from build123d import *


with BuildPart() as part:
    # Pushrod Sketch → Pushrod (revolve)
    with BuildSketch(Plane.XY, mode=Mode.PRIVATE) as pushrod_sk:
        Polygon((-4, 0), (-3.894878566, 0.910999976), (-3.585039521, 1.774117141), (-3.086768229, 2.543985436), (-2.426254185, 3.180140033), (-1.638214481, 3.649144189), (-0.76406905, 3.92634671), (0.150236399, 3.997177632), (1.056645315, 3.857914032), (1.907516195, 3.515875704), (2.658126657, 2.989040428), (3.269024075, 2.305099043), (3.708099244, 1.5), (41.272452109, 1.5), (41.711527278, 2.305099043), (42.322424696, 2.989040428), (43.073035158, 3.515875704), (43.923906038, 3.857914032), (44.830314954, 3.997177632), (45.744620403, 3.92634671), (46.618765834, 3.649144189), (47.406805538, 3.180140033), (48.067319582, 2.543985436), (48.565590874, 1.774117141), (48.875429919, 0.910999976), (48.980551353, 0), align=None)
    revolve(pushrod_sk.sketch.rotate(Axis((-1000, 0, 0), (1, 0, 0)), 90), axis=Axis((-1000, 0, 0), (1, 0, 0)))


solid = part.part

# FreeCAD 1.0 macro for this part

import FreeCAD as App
import Part
import Sketcher
Q = App.Units.Quantity

doc = App.newDocument("Part")
params = doc.addObject("Spreadsheet::Sheet", "Params")
for row, (alias, value) in enumerate([
    ("revolution_angle", "360 deg"),
], start=1):
    params.set(f"A{row}", alias)
    params.set(f"B{row}", "=" + value)
    params.setAlias(f"B{row}", alias)

body = doc.addObject("PartDesign::Body", "Body")

# Sketch on XY plane
sketch1 = doc.addObject("Sketcher::SketchObject", "Sketch")
body.addObject(sketch1)
sketch1.AttachmentSupport = (doc.XY_Plane, [""])
sketch1.MapMode = "FlatFace"
sketch1.addGeometry([
    Part.LineSegment(App.Vector(-3.9, 0.9, 0), App.Vector(-4, 0, 0)),  # 0
    Part.LineSegment(App.Vector(-4, 0, 0), App.Vector(49, 0, 0)),  # 1
    Part.LineSegment(App.Vector(49, 0, 0), App.Vector(48.9, 0.9, 0)),  # 2
    Part.LineSegment(App.Vector(48.9, 0.9, 0), App.Vector(48.6, 1.8, 0)),  # 3
    Part.LineSegment(App.Vector(48.6, 1.8, 0), App.Vector(48.1, 2.5, 0)),  # 4
    Part.LineSegment(App.Vector(48.1, 2.5, 0), App.Vector(47.4, 3.2, 0)),  # 5
    Part.LineSegment(App.Vector(47.4, 3.2, 0), App.Vector(46.6, 3.6, 0)),  # 6
    Part.LineSegment(App.Vector(46.6, 3.6, 0), App.Vector(45.7, 3.9, 0)),  # 7
    Part.LineSegment(App.Vector(45.7, 3.9, 0), App.Vector(44.8, 4, 0)),  # 8
    Part.LineSegment(App.Vector(44.8, 4, 0), App.Vector(43.9, 3.9, 0)),  # 9
    Part.LineSegment(App.Vector(43.9, 3.9, 0), App.Vector(43.1, 3.5, 0)),  # 10
    Part.LineSegment(App.Vector(43.1, 3.5, 0), App.Vector(42.3, 3, 0)),  # 11
    Part.LineSegment(App.Vector(42.3, 3, 0), App.Vector(41.7, 2.3, 0)),  # 12
    Part.LineSegment(App.Vector(41.7, 2.3, 0), App.Vector(41.3, 1.5, 0)),  # 13
    Part.LineSegment(App.Vector(41.3, 1.5, 0), App.Vector(3.7, 1.5, 0)),  # 14
    Part.LineSegment(App.Vector(3.7, 1.5, 0), App.Vector(3.3, 2.3, 0)),  # 15
    Part.LineSegment(App.Vector(3.3, 2.3, 0), App.Vector(2.7, 3, 0)),  # 16
    Part.LineSegment(App.Vector(2.7, 3, 0), App.Vector(1.9, 3.5, 0)),  # 17
    Part.LineSegment(App.Vector(1.9, 3.5, 0), App.Vector(1.1, 3.9, 0)),  # 18
    Part.LineSegment(App.Vector(1.1, 3.9, 0), App.Vector(0.2, 4, 0)),  # 19
    Part.LineSegment(App.Vector(0.2, 4, 0), App.Vector(-0.8, 3.9, 0)),  # 20
    Part.LineSegment(App.Vector(-0.8, 3.9, 0), App.Vector(-1.6, 3.6, 0)),  # 21
    Part.LineSegment(App.Vector(-1.6, 3.6, 0), App.Vector(-2.4, 3.2, 0)),  # 22
    Part.LineSegment(App.Vector(-2.4, 3.2, 0), App.Vector(-3.1, 2.5, 0)),  # 23
    Part.LineSegment(App.Vector(-3.1, 2.5, 0), App.Vector(-3.6, 1.8, 0)),  # 24
    Part.LineSegment(App.Vector(-3.6, 1.8, 0), App.Vector(-3.9, 0.9, 0)),  # 25
], False)
sketch1.addConstraint([
    Sketcher.Constraint("Coincident", 0, 2, 1, 1),
    Sketcher.Constraint("Coincident", 1, 2, 2, 1),
    Sketcher.Constraint("Coincident", 2, 2, 3, 1),
    Sketcher.Constraint("Coincident", 3, 2, 4, 1),
    Sketcher.Constraint("Coincident", 4, 2, 5, 1),
    Sketcher.Constraint("Coincident", 5, 2, 6, 1),
    Sketcher.Constraint("Coincident", 6, 2, 7, 1),
    Sketcher.Constraint("Coincident", 7, 2, 8, 1),
    Sketcher.Constraint("Coincident", 8, 2, 9, 1),
    Sketcher.Constraint("Coincident", 9, 2, 10, 1),
    Sketcher.Constraint("Coincident", 10, 2, 11, 1),
    Sketcher.Constraint("Coincident", 11, 2, 12, 1),
    Sketcher.Constraint("Coincident", 12, 2, 13, 1),
    Sketcher.Constraint("Coincident", 13, 2, 14, 1),
    Sketcher.Constraint("Coincident", 14, 2, 15, 1),
    Sketcher.Constraint("Coincident", 15, 2, 16, 1),
    Sketcher.Constraint("Coincident", 16, 2, 17, 1),
    Sketcher.Constraint("Coincident", 17, 2, 18, 1),
    Sketcher.Constraint("Coincident", 18, 2, 19, 1),
    Sketcher.Constraint("Coincident", 19, 2, 20, 1),
    Sketcher.Constraint("Coincident", 20, 2, 21, 1),
    Sketcher.Constraint("Coincident", 21, 2, 22, 1),
    Sketcher.Constraint("Coincident", 22, 2, 23, 1),
    Sketcher.Constraint("Coincident", 23, 2, 24, 1),
    Sketcher.Constraint("Coincident", 24, 2, 25, 1),
    Sketcher.Constraint("Coincident", 25, 2, 0, 1),
    Sketcher.Constraint("Horizontal", 1),
    Sketcher.Constraint("Horizontal", 14),
    Sketcher.Constraint("PointOnObject", 0, 2, -1),
    Sketcher.Constraint("Horizontal", 12, 2, 15, 2),
    Sketcher.Constraint("Horizontal", 11, 2, 16, 2),
    Sketcher.Constraint("Horizontal", 10, 2, 17, 2),
    Sketcher.Constraint("Horizontal", 9, 2, 18, 2),
    Sketcher.Constraint("Horizontal", 8, 2, 19, 2),
    Sketcher.Constraint("Horizontal", 7, 2, 20, 2),
    Sketcher.Constraint("Horizontal", 6, 2, 21, 2),
    Sketcher.Constraint("Horizontal", 5, 2, 22, 2),
    Sketcher.Constraint("Horizontal", 4, 2, 23, 2),
    Sketcher.Constraint("Horizontal", 3, 2, 24, 2),
    Sketcher.Constraint("Horizontal", 2, 2, 25, 2),
    Sketcher.Constraint("Equal", 0, 2),
    Sketcher.Constraint("Equal", 2, 3),
    Sketcher.Constraint("Equal", 3, 4),
    Sketcher.Constraint("Equal", 4, 5),
    Sketcher.Constraint("Equal", 5, 6),
    Sketcher.Constraint("Equal", 6, 7),
    Sketcher.Constraint("Equal", 7, 8),
    Sketcher.Constraint("Equal", 8, 9),
    Sketcher.Constraint("Equal", 9, 10),
    Sketcher.Constraint("Equal", 10, 11),
    Sketcher.Constraint("Equal", 11, 12),
    Sketcher.Constraint("Equal", 12, 13),
    Sketcher.Constraint("Equal", 13, 15),
    Sketcher.Constraint("Equal", 15, 16),
    Sketcher.Constraint("Equal", 16, 17),
    Sketcher.Constraint("Equal", 17, 18),
    Sketcher.Constraint("Equal", 18, 19),
    Sketcher.Constraint("Equal", 19, 20),
    Sketcher.Constraint("Equal", 20, 21),
    Sketcher.Constraint("Equal", 21, 22),
    Sketcher.Constraint("Equal", 22, 23),
    Sketcher.Constraint("Equal", 23, 24),
    Sketcher.Constraint("Equal", 24, 25),
    Sketcher.Constraint("DistanceX", 0, 2, -1, 1, Q("4 mm")),
    Sketcher.Constraint("DistanceY", -1, 1, 13, 2, Q("1.5 mm")),
    Sketcher.Constraint("DistanceY", -1, 1, 2, 2, Q("0.911 mm")),
    Sketcher.Constraint("DistanceX", 1, 1, 1, 2, Q("52.980551 mm")),
    Sketcher.Constraint("DistanceY", -1, 1, 12, 2, Q("2.305099 mm")),
    Sketcher.Constraint("DistanceX", -1, 1, 14, 2, Q("3.708099 mm")),
    Sketcher.Constraint("DistanceX", 7, 2, 4, 2, Q("2.322699 mm")),
    Sketcher.Constraint("DistanceX", 9, 2, 5, 2, Q("3.4829 mm")),
    Sketcher.Constraint("DistanceY", 10, 2, 8, 2, Q("0.481302 mm")),
    Sketcher.Constraint("DistanceX", 15, 2, 11, 2, Q("39.053401 mm")),
    Sketcher.Constraint("DistanceX", -1, 1, 2, 2, Q("48.87543 mm")),
    Sketcher.Constraint("DistanceX", -1, 1, 3, 2, Q("48.565591 mm")),
    Sketcher.Constraint("DistanceX", -1, 1, 4, 2, Q("48.06732 mm")),
    Sketcher.Constraint("DistanceY", -1, 1, 5, 2, Q("3.18014 mm")),
    Sketcher.Constraint("DistanceX", 6, 2, 5, 2, Q("0.78804 mm")),
])
revolution = doc.addObject("PartDesign::Revolution", "Revolution")
body.addObject(revolution)
revolution.Profile = sketch1
revolution.ReferenceAxis = (sketch1, ["H_Axis"])
revolution.setExpression("Angle", "Params.revolution_angle")

doc.recompute()
